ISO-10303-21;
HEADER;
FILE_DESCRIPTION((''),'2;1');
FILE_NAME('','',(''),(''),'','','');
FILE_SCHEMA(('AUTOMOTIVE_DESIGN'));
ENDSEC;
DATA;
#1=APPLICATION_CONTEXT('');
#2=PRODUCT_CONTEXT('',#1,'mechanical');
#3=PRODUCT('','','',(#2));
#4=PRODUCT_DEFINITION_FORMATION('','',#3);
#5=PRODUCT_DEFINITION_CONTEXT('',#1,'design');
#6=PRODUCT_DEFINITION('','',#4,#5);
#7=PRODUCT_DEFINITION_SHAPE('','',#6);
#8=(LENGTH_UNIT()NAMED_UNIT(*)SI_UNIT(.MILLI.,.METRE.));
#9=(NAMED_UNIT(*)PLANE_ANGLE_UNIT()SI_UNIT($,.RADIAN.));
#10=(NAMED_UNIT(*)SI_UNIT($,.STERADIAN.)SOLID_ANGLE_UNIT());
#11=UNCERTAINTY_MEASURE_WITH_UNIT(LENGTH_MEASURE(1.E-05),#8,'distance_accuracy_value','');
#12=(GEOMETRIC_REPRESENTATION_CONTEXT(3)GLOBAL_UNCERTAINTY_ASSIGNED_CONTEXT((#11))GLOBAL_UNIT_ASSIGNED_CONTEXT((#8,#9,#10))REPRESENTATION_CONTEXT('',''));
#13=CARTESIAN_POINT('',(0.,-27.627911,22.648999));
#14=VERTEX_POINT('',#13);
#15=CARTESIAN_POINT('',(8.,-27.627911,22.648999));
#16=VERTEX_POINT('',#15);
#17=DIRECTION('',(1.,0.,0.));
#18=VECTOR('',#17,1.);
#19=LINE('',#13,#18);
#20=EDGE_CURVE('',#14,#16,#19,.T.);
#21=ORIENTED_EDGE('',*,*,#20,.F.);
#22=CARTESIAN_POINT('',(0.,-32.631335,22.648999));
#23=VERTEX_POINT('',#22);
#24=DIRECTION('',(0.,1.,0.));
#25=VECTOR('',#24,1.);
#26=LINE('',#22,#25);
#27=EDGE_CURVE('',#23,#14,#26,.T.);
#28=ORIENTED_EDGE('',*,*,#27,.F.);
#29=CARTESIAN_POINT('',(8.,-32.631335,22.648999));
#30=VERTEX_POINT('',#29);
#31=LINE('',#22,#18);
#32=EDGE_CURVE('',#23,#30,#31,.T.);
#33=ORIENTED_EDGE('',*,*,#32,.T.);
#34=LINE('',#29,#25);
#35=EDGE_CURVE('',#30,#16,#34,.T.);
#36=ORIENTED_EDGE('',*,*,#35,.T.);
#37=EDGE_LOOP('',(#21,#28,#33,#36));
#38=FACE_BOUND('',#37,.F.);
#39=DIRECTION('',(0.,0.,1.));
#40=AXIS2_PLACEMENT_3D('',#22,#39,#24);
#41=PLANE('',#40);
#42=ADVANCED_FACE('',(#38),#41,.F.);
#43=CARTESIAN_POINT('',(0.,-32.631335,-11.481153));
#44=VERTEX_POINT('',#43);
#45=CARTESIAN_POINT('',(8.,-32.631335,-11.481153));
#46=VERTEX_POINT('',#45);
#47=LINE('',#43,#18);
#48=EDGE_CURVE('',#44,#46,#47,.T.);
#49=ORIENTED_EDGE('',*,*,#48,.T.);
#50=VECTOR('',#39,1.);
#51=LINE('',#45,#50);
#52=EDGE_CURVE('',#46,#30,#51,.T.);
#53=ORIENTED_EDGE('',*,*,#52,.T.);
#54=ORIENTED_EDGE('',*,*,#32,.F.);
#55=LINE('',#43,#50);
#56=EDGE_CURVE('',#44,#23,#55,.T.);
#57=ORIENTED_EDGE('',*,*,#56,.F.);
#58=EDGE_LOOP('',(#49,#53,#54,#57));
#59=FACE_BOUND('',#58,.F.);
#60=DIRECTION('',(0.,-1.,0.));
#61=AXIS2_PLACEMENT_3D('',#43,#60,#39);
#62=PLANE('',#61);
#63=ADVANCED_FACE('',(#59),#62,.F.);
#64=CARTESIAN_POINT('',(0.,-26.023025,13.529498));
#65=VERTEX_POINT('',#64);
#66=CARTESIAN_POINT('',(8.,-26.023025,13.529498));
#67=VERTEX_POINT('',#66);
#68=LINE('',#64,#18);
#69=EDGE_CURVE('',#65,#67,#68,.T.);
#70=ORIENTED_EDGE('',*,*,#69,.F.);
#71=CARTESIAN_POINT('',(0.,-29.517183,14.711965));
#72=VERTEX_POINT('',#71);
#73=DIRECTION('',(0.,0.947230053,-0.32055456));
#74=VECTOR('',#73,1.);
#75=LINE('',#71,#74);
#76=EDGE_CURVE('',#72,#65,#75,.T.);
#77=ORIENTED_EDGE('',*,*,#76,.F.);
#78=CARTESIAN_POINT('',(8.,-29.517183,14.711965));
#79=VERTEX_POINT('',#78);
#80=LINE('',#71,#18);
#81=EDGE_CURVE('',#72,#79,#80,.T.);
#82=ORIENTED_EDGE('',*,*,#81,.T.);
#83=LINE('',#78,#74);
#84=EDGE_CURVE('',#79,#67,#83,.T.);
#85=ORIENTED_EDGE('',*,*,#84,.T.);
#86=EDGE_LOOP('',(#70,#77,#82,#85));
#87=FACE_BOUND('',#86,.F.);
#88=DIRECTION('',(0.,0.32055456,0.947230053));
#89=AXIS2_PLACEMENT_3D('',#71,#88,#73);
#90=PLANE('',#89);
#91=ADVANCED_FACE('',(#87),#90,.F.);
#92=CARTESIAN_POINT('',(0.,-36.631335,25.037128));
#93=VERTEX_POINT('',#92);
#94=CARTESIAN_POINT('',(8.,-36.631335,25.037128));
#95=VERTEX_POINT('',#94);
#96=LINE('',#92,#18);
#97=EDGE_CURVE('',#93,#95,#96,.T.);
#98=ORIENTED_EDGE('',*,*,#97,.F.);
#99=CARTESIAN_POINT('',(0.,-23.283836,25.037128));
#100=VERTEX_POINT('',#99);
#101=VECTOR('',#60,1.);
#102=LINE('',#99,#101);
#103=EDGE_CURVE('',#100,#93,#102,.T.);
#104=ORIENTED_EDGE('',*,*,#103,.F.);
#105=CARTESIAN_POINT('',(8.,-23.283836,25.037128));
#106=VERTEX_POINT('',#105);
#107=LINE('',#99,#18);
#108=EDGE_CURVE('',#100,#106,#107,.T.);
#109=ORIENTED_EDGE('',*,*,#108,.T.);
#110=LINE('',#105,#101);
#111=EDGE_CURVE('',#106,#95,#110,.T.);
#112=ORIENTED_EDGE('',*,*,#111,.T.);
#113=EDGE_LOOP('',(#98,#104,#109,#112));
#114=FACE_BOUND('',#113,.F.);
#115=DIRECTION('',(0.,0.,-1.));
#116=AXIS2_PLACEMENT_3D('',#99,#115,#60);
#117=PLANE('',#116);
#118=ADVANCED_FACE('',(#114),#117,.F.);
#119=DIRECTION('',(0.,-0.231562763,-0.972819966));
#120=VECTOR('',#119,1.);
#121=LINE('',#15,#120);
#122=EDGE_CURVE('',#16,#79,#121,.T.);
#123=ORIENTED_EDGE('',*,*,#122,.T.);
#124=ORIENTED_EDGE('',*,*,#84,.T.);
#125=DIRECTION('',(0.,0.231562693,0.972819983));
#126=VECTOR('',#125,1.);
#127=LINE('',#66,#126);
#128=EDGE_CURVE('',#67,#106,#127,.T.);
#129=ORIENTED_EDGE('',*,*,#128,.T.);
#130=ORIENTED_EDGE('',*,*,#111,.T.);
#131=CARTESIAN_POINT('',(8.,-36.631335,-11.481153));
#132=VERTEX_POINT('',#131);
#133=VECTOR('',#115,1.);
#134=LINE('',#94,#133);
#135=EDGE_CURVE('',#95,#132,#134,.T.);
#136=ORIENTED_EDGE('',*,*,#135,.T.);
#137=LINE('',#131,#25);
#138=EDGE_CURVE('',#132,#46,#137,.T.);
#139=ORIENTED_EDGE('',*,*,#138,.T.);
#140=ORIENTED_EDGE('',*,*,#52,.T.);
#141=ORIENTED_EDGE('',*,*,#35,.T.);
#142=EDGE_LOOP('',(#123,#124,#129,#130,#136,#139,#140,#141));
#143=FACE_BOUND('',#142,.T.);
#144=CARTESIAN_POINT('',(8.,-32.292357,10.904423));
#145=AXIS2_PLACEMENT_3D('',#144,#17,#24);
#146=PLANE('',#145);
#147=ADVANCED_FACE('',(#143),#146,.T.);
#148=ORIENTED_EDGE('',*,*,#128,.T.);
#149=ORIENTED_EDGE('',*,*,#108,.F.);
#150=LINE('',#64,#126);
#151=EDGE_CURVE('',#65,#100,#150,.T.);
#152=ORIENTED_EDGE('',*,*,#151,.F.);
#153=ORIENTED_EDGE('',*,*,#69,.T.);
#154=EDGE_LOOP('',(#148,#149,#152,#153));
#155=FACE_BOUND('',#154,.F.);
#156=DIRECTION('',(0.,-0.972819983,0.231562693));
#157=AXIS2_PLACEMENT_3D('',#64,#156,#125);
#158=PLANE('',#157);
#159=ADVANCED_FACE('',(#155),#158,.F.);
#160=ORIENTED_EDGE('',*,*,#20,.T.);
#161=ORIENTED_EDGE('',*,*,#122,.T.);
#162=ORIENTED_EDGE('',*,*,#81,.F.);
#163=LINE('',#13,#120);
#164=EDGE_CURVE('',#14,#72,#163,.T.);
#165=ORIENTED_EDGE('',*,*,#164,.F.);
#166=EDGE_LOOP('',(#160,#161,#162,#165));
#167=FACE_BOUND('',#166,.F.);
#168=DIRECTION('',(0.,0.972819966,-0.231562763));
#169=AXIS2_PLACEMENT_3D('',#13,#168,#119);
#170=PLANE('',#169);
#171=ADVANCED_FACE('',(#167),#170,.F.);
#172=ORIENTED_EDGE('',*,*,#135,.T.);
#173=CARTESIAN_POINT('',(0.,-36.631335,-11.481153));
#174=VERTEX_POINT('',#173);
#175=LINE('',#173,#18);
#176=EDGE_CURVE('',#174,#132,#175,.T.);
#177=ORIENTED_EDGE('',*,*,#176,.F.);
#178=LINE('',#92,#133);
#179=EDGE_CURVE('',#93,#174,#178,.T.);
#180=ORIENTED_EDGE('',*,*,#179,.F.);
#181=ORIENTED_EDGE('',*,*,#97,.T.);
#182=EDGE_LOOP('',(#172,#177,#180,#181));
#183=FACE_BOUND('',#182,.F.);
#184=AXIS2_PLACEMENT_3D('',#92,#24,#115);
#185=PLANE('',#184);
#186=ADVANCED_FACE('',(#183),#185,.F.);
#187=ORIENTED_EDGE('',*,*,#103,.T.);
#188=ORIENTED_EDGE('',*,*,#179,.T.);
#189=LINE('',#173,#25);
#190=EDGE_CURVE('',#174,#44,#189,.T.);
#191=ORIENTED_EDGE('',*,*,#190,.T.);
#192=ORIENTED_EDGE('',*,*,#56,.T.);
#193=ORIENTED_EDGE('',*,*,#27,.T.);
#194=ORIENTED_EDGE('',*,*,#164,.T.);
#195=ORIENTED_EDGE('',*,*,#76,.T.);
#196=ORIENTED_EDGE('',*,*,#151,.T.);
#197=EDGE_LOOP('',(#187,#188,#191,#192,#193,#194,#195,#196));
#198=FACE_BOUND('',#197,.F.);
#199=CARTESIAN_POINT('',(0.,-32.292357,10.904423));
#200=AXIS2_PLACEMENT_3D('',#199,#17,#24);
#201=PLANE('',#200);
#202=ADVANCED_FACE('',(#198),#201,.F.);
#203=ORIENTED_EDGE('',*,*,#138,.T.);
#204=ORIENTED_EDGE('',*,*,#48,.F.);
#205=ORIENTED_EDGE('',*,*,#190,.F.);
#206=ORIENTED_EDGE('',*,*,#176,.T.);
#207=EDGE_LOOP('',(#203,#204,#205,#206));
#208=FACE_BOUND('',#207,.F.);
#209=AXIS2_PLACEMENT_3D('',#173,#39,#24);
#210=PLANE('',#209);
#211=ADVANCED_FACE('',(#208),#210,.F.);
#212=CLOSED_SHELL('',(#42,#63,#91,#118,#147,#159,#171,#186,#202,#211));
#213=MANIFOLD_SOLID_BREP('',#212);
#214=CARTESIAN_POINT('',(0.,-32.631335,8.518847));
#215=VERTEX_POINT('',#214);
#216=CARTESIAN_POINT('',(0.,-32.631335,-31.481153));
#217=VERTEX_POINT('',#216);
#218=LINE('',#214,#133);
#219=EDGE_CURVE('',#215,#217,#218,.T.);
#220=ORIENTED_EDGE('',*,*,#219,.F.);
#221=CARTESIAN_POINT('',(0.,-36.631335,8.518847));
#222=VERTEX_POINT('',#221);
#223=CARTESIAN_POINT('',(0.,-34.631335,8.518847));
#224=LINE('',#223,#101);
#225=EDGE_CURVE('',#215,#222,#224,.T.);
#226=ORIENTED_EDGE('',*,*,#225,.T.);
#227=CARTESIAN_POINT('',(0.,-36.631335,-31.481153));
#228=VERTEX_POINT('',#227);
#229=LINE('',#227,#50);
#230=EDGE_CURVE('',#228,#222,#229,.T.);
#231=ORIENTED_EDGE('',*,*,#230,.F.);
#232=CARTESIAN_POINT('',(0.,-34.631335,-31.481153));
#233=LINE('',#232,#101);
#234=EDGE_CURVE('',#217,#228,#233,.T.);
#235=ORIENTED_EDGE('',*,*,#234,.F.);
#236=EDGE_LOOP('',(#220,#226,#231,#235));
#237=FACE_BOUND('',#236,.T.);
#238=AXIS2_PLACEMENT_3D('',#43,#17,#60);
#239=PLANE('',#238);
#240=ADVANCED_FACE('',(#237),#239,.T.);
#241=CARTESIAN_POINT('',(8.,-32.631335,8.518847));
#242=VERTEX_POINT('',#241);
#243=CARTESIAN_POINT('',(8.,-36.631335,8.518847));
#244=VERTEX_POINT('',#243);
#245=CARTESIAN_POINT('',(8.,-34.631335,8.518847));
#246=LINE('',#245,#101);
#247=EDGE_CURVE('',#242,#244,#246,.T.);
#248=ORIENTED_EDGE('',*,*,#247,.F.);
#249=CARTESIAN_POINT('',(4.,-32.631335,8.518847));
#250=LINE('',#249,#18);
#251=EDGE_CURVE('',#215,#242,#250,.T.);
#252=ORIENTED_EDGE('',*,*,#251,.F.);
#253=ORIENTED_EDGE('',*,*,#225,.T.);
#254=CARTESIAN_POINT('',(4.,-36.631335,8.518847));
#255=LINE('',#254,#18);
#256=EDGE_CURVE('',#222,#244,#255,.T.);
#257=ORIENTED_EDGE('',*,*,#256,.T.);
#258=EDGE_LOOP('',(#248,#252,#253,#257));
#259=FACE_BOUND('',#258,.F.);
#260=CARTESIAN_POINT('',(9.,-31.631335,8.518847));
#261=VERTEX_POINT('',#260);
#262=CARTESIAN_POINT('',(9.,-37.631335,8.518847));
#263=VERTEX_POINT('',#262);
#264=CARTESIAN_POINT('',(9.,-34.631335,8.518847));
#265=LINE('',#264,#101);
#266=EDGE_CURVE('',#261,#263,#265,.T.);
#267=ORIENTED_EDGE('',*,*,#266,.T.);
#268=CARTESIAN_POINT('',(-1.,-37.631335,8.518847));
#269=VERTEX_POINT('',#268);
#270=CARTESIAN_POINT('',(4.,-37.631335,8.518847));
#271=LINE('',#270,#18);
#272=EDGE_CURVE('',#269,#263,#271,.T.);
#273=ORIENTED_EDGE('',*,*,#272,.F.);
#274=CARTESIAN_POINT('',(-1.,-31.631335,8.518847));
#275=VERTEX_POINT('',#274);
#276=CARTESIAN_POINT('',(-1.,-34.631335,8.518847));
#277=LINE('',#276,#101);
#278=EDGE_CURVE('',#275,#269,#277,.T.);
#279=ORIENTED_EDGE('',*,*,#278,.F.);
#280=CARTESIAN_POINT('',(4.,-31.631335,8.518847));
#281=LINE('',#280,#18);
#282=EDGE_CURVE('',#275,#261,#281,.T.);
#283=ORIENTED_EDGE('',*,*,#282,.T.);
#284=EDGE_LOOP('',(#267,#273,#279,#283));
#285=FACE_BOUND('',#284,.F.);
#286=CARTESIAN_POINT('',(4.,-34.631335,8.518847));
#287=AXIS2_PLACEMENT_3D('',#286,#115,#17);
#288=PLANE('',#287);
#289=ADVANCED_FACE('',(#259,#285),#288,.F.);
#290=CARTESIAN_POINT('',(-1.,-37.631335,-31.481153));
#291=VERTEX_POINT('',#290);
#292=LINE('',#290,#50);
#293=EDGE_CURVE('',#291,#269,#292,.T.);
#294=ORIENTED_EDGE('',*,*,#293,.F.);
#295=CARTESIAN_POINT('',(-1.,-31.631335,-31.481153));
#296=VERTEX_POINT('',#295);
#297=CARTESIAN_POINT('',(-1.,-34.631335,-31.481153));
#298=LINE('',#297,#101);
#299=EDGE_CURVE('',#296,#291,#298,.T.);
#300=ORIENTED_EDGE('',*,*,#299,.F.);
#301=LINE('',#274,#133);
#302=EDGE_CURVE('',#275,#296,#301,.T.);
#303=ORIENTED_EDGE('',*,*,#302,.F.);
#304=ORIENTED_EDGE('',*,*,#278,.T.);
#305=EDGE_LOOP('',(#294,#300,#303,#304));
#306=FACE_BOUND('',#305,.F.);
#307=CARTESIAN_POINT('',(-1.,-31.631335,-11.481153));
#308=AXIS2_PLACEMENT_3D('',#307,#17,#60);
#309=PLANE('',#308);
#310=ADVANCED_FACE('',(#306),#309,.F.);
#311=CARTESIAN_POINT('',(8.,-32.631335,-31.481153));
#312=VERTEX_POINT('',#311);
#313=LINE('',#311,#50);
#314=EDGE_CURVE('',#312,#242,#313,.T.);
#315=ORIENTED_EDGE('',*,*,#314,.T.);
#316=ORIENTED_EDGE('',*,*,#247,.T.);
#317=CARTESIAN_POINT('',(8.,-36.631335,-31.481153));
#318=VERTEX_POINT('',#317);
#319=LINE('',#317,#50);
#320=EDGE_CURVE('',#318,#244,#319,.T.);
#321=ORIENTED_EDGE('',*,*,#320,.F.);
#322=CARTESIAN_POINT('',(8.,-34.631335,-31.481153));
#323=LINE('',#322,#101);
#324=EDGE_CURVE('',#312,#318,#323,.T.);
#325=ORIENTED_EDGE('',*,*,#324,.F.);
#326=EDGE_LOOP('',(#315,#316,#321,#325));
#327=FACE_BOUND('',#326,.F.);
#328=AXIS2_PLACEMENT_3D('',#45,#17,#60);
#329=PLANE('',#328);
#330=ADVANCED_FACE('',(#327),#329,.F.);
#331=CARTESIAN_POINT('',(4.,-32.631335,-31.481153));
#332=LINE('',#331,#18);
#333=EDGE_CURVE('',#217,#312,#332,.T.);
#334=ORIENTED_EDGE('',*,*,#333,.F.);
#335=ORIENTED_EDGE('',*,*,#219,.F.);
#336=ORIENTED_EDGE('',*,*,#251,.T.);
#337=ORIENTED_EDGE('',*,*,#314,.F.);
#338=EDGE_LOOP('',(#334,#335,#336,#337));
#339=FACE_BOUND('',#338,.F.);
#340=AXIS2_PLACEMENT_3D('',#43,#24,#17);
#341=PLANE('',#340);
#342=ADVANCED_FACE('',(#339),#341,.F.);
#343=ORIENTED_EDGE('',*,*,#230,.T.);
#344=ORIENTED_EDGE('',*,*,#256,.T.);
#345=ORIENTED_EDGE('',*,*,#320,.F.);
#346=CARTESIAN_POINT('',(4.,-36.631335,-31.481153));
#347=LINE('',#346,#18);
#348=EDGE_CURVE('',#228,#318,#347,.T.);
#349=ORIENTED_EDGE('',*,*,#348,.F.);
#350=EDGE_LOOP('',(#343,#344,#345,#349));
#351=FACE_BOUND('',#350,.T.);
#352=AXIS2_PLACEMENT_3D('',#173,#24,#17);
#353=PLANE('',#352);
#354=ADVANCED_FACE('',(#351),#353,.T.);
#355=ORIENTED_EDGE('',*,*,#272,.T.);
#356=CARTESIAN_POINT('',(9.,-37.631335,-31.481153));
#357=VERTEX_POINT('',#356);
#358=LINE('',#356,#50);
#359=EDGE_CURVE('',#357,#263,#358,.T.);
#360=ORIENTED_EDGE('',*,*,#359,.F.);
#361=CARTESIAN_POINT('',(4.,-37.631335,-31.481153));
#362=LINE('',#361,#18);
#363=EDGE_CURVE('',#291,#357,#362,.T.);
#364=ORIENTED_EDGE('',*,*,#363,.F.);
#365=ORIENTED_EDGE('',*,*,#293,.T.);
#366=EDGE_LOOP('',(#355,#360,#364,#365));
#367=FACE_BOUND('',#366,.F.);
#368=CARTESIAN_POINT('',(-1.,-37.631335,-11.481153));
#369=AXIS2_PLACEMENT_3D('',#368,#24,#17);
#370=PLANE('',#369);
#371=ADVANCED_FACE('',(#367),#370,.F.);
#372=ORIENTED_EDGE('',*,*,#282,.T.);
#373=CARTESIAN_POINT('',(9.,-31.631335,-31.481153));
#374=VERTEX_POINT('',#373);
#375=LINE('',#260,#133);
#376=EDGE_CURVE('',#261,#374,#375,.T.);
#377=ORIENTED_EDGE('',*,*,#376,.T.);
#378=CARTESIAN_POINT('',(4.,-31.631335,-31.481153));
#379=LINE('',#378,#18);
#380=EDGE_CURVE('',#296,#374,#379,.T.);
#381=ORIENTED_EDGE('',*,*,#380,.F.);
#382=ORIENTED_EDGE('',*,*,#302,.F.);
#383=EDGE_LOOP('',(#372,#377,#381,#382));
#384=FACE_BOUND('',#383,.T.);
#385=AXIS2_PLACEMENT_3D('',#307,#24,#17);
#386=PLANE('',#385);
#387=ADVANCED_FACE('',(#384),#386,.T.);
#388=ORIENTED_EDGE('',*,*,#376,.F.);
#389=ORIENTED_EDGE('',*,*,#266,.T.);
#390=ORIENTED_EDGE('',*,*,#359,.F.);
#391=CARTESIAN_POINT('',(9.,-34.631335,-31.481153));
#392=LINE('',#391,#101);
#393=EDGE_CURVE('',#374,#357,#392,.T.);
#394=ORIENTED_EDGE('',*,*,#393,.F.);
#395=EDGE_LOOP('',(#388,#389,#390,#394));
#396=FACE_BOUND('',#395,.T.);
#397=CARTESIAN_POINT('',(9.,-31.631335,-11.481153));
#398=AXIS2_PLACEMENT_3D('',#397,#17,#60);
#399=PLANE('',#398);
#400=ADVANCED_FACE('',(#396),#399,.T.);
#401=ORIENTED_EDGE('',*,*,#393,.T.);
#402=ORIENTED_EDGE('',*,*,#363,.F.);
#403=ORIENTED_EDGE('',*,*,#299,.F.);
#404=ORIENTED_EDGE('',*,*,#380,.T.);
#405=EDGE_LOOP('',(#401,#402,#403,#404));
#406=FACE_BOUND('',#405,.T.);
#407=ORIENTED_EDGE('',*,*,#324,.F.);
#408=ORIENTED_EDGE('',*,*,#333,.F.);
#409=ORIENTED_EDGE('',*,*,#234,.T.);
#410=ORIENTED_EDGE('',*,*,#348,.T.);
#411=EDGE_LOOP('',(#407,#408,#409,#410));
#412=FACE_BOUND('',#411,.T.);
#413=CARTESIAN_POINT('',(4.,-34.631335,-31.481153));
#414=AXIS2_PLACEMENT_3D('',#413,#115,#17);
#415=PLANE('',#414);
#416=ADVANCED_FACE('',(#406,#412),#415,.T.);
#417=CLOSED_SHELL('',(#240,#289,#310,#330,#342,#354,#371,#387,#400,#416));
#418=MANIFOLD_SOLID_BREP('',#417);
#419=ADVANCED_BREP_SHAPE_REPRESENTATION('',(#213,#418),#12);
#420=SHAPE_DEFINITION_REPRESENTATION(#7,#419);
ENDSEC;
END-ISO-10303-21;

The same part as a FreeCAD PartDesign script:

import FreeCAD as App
import Part
import Sketcher
from FreeCAD import Vector
Q = App.Units.Quantity


def add_polygon(sketch, points):
    """Adds a closed chain of lines whose ends are joined by coincident constraints."""
    first, n = sketch.GeometryCount, len(points)
    for a, b in zip(points, points[1:] + points[:1]):
        sketch.addGeometry(Part.LineSegment(App.Vector(*a, 0), App.Vector(*b, 0)), False)
    for i in range(n):
        sketch.addConstraint(Sketcher.Constraint("Coincident", first + i, 2, first + (i + 1) % n, 1))

doc = App.newDocument("Part")
body = doc.addObject("PartDesign::Body", "Body")

# Sketch on YZ plane
sketch1 = body.newObject("Sketcher::SketchObject", "Sketch")
sketch1.AttachmentSupport = (doc.getObject("YZ_Plane"), [""])
sketch1.MapMode = "FlatFace"
add_polygon(sketch1, [(-32.6, -11.5), (-32.6, 22.6), (-27.6, 22.6), (-29.5, 14.7), (-26, 13.5), (-23.3, 25), (-36.6, 25), (-36.6, -11.5)])  # lines 0-7
sketch1.addConstraint([
    Sketcher.Constraint("Vertical", 0),
    Sketcher.Constraint("Horizontal", 1),
    Sketcher.Constraint("Horizontal", 5),
    Sketcher.Constraint("Vertical", 6),
    Sketcher.Constraint("Horizontal", 7),
    Sketcher.Constraint("Parallel", 2, 4),
    Sketcher.Constraint("DistanceX", 7, 1, 7, 2, Q("4 mm")),
    Sketcher.Constraint("DistanceX", 5, 2, 5, 1, Q("13.347499 mm")),
    Sketcher.Constraint("DistanceY", -1, 1, 0, 2, Q("22.648999 mm")),
    Sketcher.Constraint("DistanceY", 6, 2, 6, 1, Q("36.518281 mm")),
    Sketcher.Constraint("DistanceY", 3, 2, 1, 2, Q("9.119501 mm")),
    Sketcher.Constraint("Distance", 2, Q("8.15879 mm")),
    Sketcher.Constraint("DistanceX", 1, 1, 1, 2, Q("5.003424 mm")),
    Sketcher.Constraint("DistanceY", 0, 1, 0, 2, Q("34.130152 mm")),
    Sketcher.Constraint("DistanceX", 1, 2, -1, 1, Q("27.627911 mm")),
    Sketcher.Constraint("DistanceX", 2, 2, 1, 2, Q("1.889272 mm")),
])
pad1 = body.newObject("PartDesign::Pad", "Pad")
pad1.Profile = sketch1
pad1.Length = 8
body2 = doc.addObject("PartDesign::Body", "Body001")

# Sketch on XY plane
sketch2 = body2.newObject("Sketcher::SketchObject", "Sketch001")
sketch2.AttachmentSupport = (doc.getObject("XY_Plane001"), [""])
sketch2.MapMode = "FlatFace"
sketch2.AttachmentOffset = App.Placement(Vector(0, 0, -11.481153), App.Rotation())
add_polygon(sketch2, [(-1, -37.6), (-1, -31.6), (9, -31.6), (9, -37.6)])  # lines 0-3
add_polygon(sketch2, [(8, -32.6), (0, -32.6), (0, -36.6), (8, -36.6)])  # lines 4-7
sketch2.addConstraint([
    Sketcher.Constraint("Vertical", 0),
    Sketcher.Constraint("Horizontal", 1),
    Sketcher.Constraint("Vertical", 2),
    Sketcher.Constraint("Horizontal", 3),
    Sketcher.Constraint("Horizontal", 4),
    Sketcher.Constraint("Vertical", 5),
    Sketcher.Constraint("Horizontal", 6),
    Sketcher.Constraint("Vertical", 7),
    Sketcher.Constraint("PointOnObject", 4, 2, -2),
    Sketcher.Constraint("DistanceX", 1, 1, 1, 2, Q("10 mm")),
    Sketcher.Constraint("DistanceX", 4, 2, 4, 1, Q("8 mm")),
    Sketcher.Constraint("DistanceY", 0, 1, 0, 2, Q("6 mm")),
    Sketcher.Constraint("DistanceY", 5, 2, 5, 1, Q("4 mm")),
    Sketcher.Constraint("DistanceX", 0, 2, -1, 1, Q("1 mm")),
    Sketcher.Constraint("DistanceY", 4, 2, 0, 2, Q("1 mm")),
    Sketcher.Constraint("DistanceY", 0, 2, -1, 1, Q("31.631335 mm")),
])
pad2 = body2.newObject("PartDesign::Pad", "Pad001")
pad2.Profile = sketch2
pad2.Length = 40
pad2.Midplane = True

doc.recompute()
